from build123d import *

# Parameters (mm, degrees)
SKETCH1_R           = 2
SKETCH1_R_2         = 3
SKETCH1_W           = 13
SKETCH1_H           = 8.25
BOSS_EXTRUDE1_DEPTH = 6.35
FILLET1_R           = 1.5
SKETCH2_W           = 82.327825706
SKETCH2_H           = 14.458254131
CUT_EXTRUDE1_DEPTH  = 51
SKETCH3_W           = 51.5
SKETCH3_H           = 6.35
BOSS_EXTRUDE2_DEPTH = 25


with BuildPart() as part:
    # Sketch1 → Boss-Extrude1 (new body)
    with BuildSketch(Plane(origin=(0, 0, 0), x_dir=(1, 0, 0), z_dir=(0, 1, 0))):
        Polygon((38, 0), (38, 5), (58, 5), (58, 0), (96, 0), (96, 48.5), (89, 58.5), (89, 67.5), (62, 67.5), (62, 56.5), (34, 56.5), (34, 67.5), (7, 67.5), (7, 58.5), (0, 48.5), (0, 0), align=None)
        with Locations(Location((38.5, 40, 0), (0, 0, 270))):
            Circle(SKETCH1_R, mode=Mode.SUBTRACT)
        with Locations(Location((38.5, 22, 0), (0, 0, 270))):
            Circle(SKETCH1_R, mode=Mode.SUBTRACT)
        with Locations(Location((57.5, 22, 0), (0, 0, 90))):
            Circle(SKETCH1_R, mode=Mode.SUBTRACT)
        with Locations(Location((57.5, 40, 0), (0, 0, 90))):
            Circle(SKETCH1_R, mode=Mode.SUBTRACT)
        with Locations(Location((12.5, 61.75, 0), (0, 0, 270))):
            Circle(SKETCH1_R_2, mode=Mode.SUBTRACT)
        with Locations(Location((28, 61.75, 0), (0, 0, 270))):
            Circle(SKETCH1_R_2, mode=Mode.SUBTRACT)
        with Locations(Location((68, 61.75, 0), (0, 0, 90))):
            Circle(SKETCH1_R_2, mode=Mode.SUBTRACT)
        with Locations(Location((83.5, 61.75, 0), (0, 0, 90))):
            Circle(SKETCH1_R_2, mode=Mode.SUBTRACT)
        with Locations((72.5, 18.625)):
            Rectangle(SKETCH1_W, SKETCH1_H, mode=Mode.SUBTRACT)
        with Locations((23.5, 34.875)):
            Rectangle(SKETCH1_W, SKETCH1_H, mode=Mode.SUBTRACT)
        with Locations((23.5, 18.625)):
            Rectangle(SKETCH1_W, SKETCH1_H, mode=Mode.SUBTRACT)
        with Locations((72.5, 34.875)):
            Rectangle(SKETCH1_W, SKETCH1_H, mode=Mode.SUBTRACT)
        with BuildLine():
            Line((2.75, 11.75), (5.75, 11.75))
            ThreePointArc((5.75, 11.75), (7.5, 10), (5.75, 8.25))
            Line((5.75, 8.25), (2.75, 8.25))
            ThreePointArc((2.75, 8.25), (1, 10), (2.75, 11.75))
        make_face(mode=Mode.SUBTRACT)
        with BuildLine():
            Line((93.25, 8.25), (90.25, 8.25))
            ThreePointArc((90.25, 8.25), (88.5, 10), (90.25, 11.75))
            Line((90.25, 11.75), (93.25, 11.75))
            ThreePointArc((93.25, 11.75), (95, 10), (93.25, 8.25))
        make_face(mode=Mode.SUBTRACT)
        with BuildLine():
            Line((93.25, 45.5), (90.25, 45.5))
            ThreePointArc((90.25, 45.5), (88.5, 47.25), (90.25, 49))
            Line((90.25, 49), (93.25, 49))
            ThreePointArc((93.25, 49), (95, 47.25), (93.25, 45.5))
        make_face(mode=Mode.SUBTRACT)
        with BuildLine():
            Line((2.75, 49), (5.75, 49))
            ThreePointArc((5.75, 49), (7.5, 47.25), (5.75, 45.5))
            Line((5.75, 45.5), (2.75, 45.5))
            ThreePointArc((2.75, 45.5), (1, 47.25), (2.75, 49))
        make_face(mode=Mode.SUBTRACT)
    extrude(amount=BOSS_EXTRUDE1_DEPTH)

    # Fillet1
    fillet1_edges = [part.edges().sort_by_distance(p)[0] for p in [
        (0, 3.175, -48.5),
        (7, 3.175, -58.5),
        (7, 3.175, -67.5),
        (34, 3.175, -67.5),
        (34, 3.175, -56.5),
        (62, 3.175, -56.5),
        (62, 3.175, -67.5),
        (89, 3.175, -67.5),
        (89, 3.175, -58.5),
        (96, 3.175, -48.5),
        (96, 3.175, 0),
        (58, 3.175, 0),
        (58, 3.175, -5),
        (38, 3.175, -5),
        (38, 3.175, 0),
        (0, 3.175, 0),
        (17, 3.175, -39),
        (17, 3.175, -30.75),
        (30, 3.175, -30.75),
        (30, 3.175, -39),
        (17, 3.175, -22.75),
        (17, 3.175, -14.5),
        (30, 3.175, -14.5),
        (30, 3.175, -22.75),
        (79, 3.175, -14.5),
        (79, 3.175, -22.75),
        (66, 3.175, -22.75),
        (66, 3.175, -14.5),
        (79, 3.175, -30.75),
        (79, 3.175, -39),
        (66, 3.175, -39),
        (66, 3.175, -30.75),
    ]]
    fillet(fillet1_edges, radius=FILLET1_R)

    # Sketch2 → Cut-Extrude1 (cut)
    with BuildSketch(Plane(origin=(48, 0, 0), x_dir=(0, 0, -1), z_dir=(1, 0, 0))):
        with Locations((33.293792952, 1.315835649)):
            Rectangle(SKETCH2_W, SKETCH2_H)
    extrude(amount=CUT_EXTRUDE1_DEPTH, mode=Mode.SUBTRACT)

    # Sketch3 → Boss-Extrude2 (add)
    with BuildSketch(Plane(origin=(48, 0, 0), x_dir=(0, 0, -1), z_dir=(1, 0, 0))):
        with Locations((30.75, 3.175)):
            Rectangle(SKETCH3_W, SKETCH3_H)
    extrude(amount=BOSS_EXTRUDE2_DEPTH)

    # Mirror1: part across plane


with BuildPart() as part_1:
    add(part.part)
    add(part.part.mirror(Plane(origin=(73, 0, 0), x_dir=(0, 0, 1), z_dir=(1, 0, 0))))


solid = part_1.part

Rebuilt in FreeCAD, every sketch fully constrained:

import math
import FreeCAD as App
import Part
import Sketcher
from FreeCAD import Vector


def edges_at(feature, points):
    """Names of the edges that pass closest to the given points."""
    edges = feature.Shape.Edges
    near = lambda p: min(range(len(edges)), key=lambda i: edges[i].distToShape(Part.Vertex(*p))[0])
    return sorted({f"Edge{near(p) + 1}" for p in points})


def add_polygon(sketch, points):
    """Adds a closed chain of lines whose ends are joined by coincident constraints."""
    first, n = sketch.GeometryCount, len(points)
    for a, b in zip(points, points[1:] + points[:1]):
        sketch.addGeometry(Part.LineSegment(App.Vector(*a, 0), App.Vector(*b, 0)), False)
    for i in range(n):
        sketch.addConstraint(Sketcher.Constraint("Coincident", first + i, 2, first + (i + 1) % n, 1))

doc = App.newDocument("Part")
body = doc.addObject("PartDesign::Body", "Body")

sketch1 = body.newObject("Sketcher::SketchObject", "Sketch")
sketch1.AttachmentSupport = (doc.getObject("XZ_Plane"), [""])
sketch1.MapMode = "FlatFace"
add_polygon(sketch1, [(38, 0), (38, -5), (58, -5), (58, 0), (96, 0), (96, -48.5), (89, -58.5), (89, -67.5), (62, -67.5), (62, -56.5), (34, -56.5), (34, -67.5), (7, -67.5), (7, -58.5), (0, -48.5), (0, 0)])
sketch1.addGeometry(Part.ArcOfCircle(Part.Circle(Vector(2.8, -10, 0), Vector(0, 0, 1), 1.8), math.radians(90), math.radians(270)), False)
sketch1.addGeometry(Part.LineSegment(Vector(2.8, -11.8, 0), Vector(5.8, -11.8, 0)), False)
sketch1.addGeometry(Part.ArcOfCircle(Part.Circle(Vector(5.8, -10, 0), Vector(0, 0, 1), 1.8), math.radians(-90), math.radians(90)), False)
sketch1.addGeometry(Part.LineSegment(Vector(5.8, -8.2, 0), Vector(2.8, -8.2, 0)), False)
add_polygon(sketch1, [(30, -14.5), (17, -14.5), (17, -22.8), (30, -22.8)])
sketch1.addGeometry(Part.Circle(Vector(38.5, -22, 0), Vector(0, 0, 1), 2), False)
add_polygon(sketch1, [(30, -30.8), (17, -30.8), (17, -39), (30, -39)])
sketch1.addGeometry(Part.Circle(Vector(57.5, -22, 0), Vector(0, 0, 1), 2), False)
sketch1.addGeometry(Part.ArcOfCircle(Part.Circle(Vector(93.2, -10, 0), Vector(0, 0, 1), 1.8), math.radians(-90), math.radians(90)), False)
sketch1.addGeometry(Part.LineSegment(Vector(93.2, -8.2, 0), Vector(90.2, -8.2, 0)), False)
sketch1.addGeometry(Part.ArcOfCircle(Part.Circle(Vector(90.2, -10, 0), Vector(0, 0, 1), 1.8), math.radians(90), math.radians(270)), False)
sketch1.addGeometry(Part.LineSegment(Vector(90.2, -11.8, 0), Vector(93.2, -11.8, 0)), False)
add_polygon(sketch1, [(79, -14.5), (66, -14.5), (66, -22.8), (79, -22.8)])
add_polygon(sketch1, [(79, -30.8), (66, -30.8), (66, -39), (79, -39)])
sketch1.addGeometry(Part.ArcOfCircle(Part.Circle(Vector(2.8, -47.2, 0), Vector(0, 0, 1), 1.8), math.radians(90), math.radians(270)), False)
sketch1.addGeometry(Part.LineSegment(Vector(2.8, -49, 0), Vector(5.8, -49, 0)), False)
sketch1.addGeometry(Part.ArcOfCircle(Part.Circle(Vector(5.8, -47.2, 0), Vector(0, 0, 1), 1.8), math.radians(-90), math.radians(90)), False)
sketch1.addGeometry(Part.LineSegment(Vector(5.8, -45.5, 0), Vector(2.8, -45.5, 0)), False)
sketch1.addGeometry(Part.Circle(Vector(38.5, -40, 0), Vector(0, 0, 1), 2), False)
sketch1.addGeometry(Part.Circle(Vector(12.5, -61.8, 0), Vector(0, 0, 1), 3), False)
sketch1.addGeometry(Part.Circle(Vector(28, -61.8, 0), Vector(0, 0, 1), 3), False)
sketch1.addGeometry(Part.Circle(Vector(57.5, -40, 0), Vector(0, 0, 1), 2), False)
sketch1.addGeometry(Part.ArcOfCircle(Part.Circle(Vector(93.2, -47.2, 0), Vector(0, 0, 1), 1.8), math.radians(-90), math.radians(90)), False)
sketch1.addGeometry(Part.LineSegment(Vector(93.2, -45.5, 0), Vector(90.2, -45.5, 0)), False)
sketch1.addGeometry(Part.ArcOfCircle(Part.Circle(Vector(90.2, -47.2, 0), Vector(0, 0, 1), 1.8), math.radians(90), math.radians(270)), False)
sketch1.addGeometry(Part.LineSegment(Vector(90.2, -49, 0), Vector(93.2, -49, 0)), False)
sketch1.addGeometry(Part.Circle(Vector(68, -61.8, 0), Vector(0, 0, 1), 3), False)
sketch1.addGeometry(Part.Circle(Vector(83.5, -61.8, 0), Vector(0, 0, 1), 3), False)
sketch1.addConstraint(Sketcher.Constraint("Tangent", 16, 2, 17, 1))
sketch1.addConstraint(Sketcher.Constraint("Tangent", 17, 2, 18, 1))
sketch1.addConstraint(Sketcher.Constraint("Tangent", 18, 2, 19, 1))
sketch1.addConstraint(Sketcher.Constraint("Tangent", 19, 2, 16, 1))
sketch1.addConstraint(Sketcher.Constraint("Tangent", 30, 2, 31, 1))
sketch1.addConstraint(Sketcher.Constraint("Tangent", 31, 2, 32, 1))
sketch1.addConstraint(Sketcher.Constraint("Tangent", 32, 2, 33, 1))
sketch1.addConstraint(Sketcher.Constraint("Tangent", 33, 2, 30, 1))
sketch1.addConstraint(Sketcher.Constraint("Tangent", 42, 2, 43, 1))
sketch1.addConstraint(Sketcher.Constraint("Tangent", 43, 2, 44, 1))
sketch1.addConstraint(Sketcher.Constraint("Tangent", 44, 2, 45, 1))
sketch1.addConstraint(Sketcher.Constraint("Tangent", 45, 2, 42, 1))
sketch1.addConstraint(Sketcher.Constraint("Tangent", 50, 2, 51, 1))
sketch1.addConstraint(Sketcher.Constraint("Tangent", 51, 2, 52, 1))
sketch1.addConstraint(Sketcher.Constraint("Tangent", 52, 2, 53, 1))
sketch1.addConstraint(Sketcher.Constraint("Tangent", 53, 2, 50, 1))
sketch1.addConstraint(Sketcher.Constraint("Vertical", 0))
sketch1.addConstraint(Sketcher.Constraint("Horizontal", 1))
sketch1.addConstraint(Sketcher.Constraint("Vertical", 2))
sketch1.addConstraint(Sketcher.Constraint("Horizontal", 3))
sketch1.addConstraint(Sketcher.Constraint("Vertical", 4))
sketch1.addConstraint(Sketcher.Constraint("Vertical", 6))
sketch1.addConstraint(Sketcher.Constraint("Horizontal", 7))
sketch1.addConstraint(Sketcher.Constraint("Vertical", 8))
sketch1.addConstraint(Sketcher.Constraint("Horizontal", 9))
sketch1.addConstraint(Sketcher.Constraint("Vertical", 10))
sketch1.addConstraint(Sketcher.Constraint("Horizontal", 11))
sketch1.addConstraint(Sketcher.Constraint("Vertical", 12))
sketch1.addConstraint(Sketcher.Constraint("Vertical", 14))
sketch1.addConstraint(Sketcher.Constraint("Horizontal", 15))
sketch1.addConstraint(Sketcher.Constraint("Horizontal", 17))
sketch1.addConstraint(Sketcher.Constraint("Horizontal", 19))
sketch1.addConstraint(Sketcher.Constraint("Horizontal", 20))
sketch1.addConstraint(Sketcher.Constraint("Vertical", 21))
sketch1.addConstraint(Sketcher.Constraint("Horizontal", 22))
sketch1.addConstraint(Sketcher.Constraint("Vertical", 23))
sketch1.addConstraint(Sketcher.Constraint("Horizontal", 25))
sketch1.addConstraint(Sketcher.Constraint("Vertical", 26))
sketch1.addConstraint(Sketcher.Constraint("Horizontal", 27))
sketch1.addConstraint(Sketcher.Constraint("Vertical", 28))
sketch1.addConstraint(Sketcher.Constraint("Horizontal", 31))
sketch1.addConstraint(Sketcher.Constraint("Horizontal", 33))
sketch1.addConstraint(Sketcher.Constraint("Horizontal", 34))
sketch1.addConstraint(Sketcher.Constraint("Vertical", 35))
sketch1.addConstraint(Sketcher.Constraint("Horizontal", 36))
sketch1.addConstraint(Sketcher.Constraint("Vertical", 37))
sketch1.addConstraint(Sketcher.Constraint("Horizontal", 38))
sketch1.addConstraint(Sketcher.Constraint("Vertical", 39))
sketch1.addConstraint(Sketcher.Constraint("Horizontal", 40))
sketch1.addConstraint(Sketcher.Constraint("Vertical", 41))
sketch1.addConstraint(Sketcher.Constraint("Horizontal", 43))
sketch1.addConstraint(Sketcher.Constraint("Horizontal", 45))
sketch1.addConstraint(Sketcher.Constraint("Horizontal", 51))
sketch1.addConstraint(Sketcher.Constraint("Horizontal", 53))
sketch1.addConstraint(Sketcher.Constraint("Coincident", 14, 2, -1, 1))
sketch1.addConstraint(Sketcher.Constraint("Equal", 24, 29))
sketch1.addConstraint(Sketcher.Constraint("Equal", 18, 30))
sketch1.addConstraint(Sketcher.Constraint("Equal", 32, 42))
sketch1.addConstraint(Sketcher.Constraint("Equal", 29, 46))
sketch1.addConstraint(Sketcher.Constraint("Equal", 47, 48))
sketch1.addConstraint(Sketcher.Constraint("Equal", 46, 49))
sketch1.addConstraint(Sketcher.Constraint("Equal", 44, 50))
sketch1.addConstraint(Sketcher.Constraint("Equal", 48, 54))
sketch1.addConstraint(Sketcher.Constraint("Equal", 54, 55))
sketch1.addConstraint(Sketcher.Constraint("PointOnObject", 2, 2, -1))
sketch1.addConstraint(Sketcher.Constraint("Horizontal", 24, 3, 29, 3))
sketch1.addConstraint(Sketcher.Constraint("Horizontal", 18, 3, 30, 3))
sketch1.addConstraint(Sketcher.Constraint("Horizontal", 47, 3, 48, 3))
sketch1.addConstraint(Sketcher.Constraint("Horizontal", 46, 3, 49, 3))
sketch1.addConstraint(Sketcher.Constraint("Horizontal", 44, 3, 50, 3))
sketch1.addConstraint(Sketcher.Constraint("Horizontal", 48, 3, 54, 3))
sketch1.addConstraint(Sketcher.Constraint("Horizontal", 54, 3, 55, 3))
sketch1.addConstraint(Sketcher.Constraint("Horizontal", 7, 2, 10, 2))
sketch1.addConstraint(Sketcher.Constraint("Horizontal", 5, 2, 12, 2))
sketch1.addConstraint(Sketcher.Constraint("Horizontal", 4, 2, 13, 2))
sketch1.addConstraint(Sketcher.Constraint("Horizontal", 23, 2, 34, 2))
sketch1.addConstraint(Sketcher.Constraint("Horizontal", 22, 2, 35, 2))
sketch1.addConstraint(Sketcher.Constraint("Horizontal", 28, 2, 38, 2))
sketch1.addConstraint(Sketcher.Constraint("Horizontal", 27, 2, 39, 2))
sketch1.addConstraint(Sketcher.Constraint("Vertical", 16, 3, 42, 3))
sketch1.addConstraint(Sketcher.Constraint("Vertical", 18, 3, 44, 3))
sketch1.addConstraint(Sketcher.Constraint("Vertical", 24, 3, 46, 3))
sketch1.addConstraint(Sketcher.Constraint("Vertical", 29, 3, 49, 3))
sketch1.addConstraint(Sketcher.Constraint("Vertical", 30, 3, 50, 3))
sketch1.addConstraint(Sketcher.Constraint("Vertical", 32, 3, 52, 3))
sketch1.addConstraint(Sketcher.Constraint("Vertical", 21, 2, 25, 2))
sketch1.addConstraint(Sketcher.Constraint("Vertical", 23, 2, 27, 2))
sketch1.addConstraint(Sketcher.Constraint("Vertical", 35, 2, 38, 2))
sketch1.addConstraint(Sketcher.Constraint("Vertical", 37, 2, 40, 2))
sketch1.addConstraint(Sketcher.Constraint("Equal", 7, 11))
sketch1.addConstraint(Sketcher.Constraint("Equal", 3, 15))
sketch1.addConstraint(Sketcher.Constraint("Equal", 19, 31))
sketch1.addConstraint(Sketcher.Constraint("Equal", 27, 34))
sketch1.addConstraint(Sketcher.Constraint("Equal", 23, 26))
sketch1.addConstraint(Sketcher.Constraint("Equal", 5, 13))
sketch1.addConstraint(Sketcher.Constraint("Diameter", 24, 4.0))
sketch1.addConstraint(Sketcher.Constraint("Diameter", 47, 6.0))
sketch1.addConstraint(Sketcher.Constraint("DistanceX", 1, 1, 1, 2, 20.0))
sketch1.addConstraint(Sketcher.Constraint("DistanceX", 3, 1, 3, 2, 38.0))
sketch1.addConstraint(Sketcher.Constraint("DistanceX", 7, 2, 7, 1, 27.0))
sketch1.addConstraint(Sketcher.Constraint("DistanceX", 9, 2, 9, 1, 28.0))
sketch1.addConstraint(Sketcher.Constraint("DistanceX", 17, 1, 17, 2, 3.0))
sketch1.addConstraint(Sketcher.Constraint("DistanceX", 20, 2, 20, 1, 13.0))
sketch1.addConstraint(Sketcher.Constraint("DistanceY", 0, 2, 0, 1, 5.0))
sketch1.addConstraint(Sketcher.Constraint("DistanceY", 6, 2, 6, 1, 9.0))
sketch1.addConstraint(Sketcher.Constraint("DistanceY", 8, 1, 8, 2, 11.0))
sketch1.addConstraint(Sketcher.Constraint("Radius", 16, 1.75))
sketch1.addConstraint(Sketcher.Constraint("DistanceY", 4, 2, 4, 1, 48.5))
sketch1.addConstraint(Sketcher.Constraint("DistanceY", 16, 3, -1, 1, 10.0))
sketch1.addConstraint(Sketcher.Constraint("DistanceY", 24, 3, -1, 1, 22.0))
sketch1.addConstraint(Sketcher.Constraint("DistanceY", 46, 3, -1, 1, 40.0))
sketch1.addConstraint(Sketcher.Constraint("DistanceX", -1, 1, 48, 3, 28.0))
sketch1.addConstraint(Sketcher.Constraint("DistanceX", -1, 1, 54, 3, 68.0))
sketch1.addConstraint(Sketcher.Constraint("DistanceX", -1, 1, 20, 2, 17.0))
sketch1.addConstraint(Sketcher.Constraint("DistanceY", 26, 2, -1, 1, 39.0))
sketch1.addConstraint(Sketcher.Constraint("DistanceX", -1, 1, 34, 2, 66.0))
sketch1.addConstraint(Sketcher.Constraint("DistanceY", 42, 2, -1, 1, 49.0))
sketch1.addConstraint(Sketcher.Constraint("DistanceY", 21, 2, 21, 1, 8.25))
sketch1.addConstraint(Sketcher.Constraint("DistanceX", -1, 1, 24, 3, 38.5))
sketch1.addConstraint(Sketcher.Constraint("DistanceX", -1, 1, 29, 3, 57.5))
sketch1.addConstraint(Sketcher.Constraint("DistanceX", -1, 1, 47, 3, 12.5))
sketch1.addConstraint(Sketcher.Constraint("DistanceX", -1, 1, 55, 3, 83.5))
sketch1.addConstraint(Sketcher.Constraint("DistanceY", 5, 2, -1, 1, 58.5))
sketch1.addConstraint(Sketcher.Constraint("DistanceY", 20, 2, -1, 1, 14.5))
sketch1.addConstraint(Sketcher.Constraint("DistanceX", -1, 1, 16, 3, 2.75))
sketch1.addConstraint(Sketcher.Constraint("DistanceX", -1, 1, 30, 3, 93.25))
sketch1.addConstraint(Sketcher.Constraint("DistanceY", 47, 3, -1, 1, 61.75))
pad1 = body.newObject("PartDesign::Pad", "Pad")
pad1.Profile = sketch1
pad1.Length = 6.35
pad1.Reversed = True
doc.recompute()

fillet = body.newObject("PartDesign::Fillet", "Fillet")
fillet.Base = (pad1, edges_at(pad1, [
    (0, 3.175, -48.5),
    (7, 3.175, -58.5),
    (7, 3.175, -67.5),
    (34, 3.175, -67.5),
    (34, 3.175, -56.5),
    (62, 3.175, -56.5),
    (62, 3.175, -67.5),
    (89, 3.175, -67.5),
    (89, 3.175, -58.5),
    (96, 3.175, -48.5),
    (96, 3.175, 0),
    (58, 3.175, 0),
    (58, 3.175, -5),
    (38, 3.175, -5),
    (38, 3.175, 0),
    (0, 3.175, 0),
    (17, 3.175, -39),
    (17, 3.175, -30.75),
    (30, 3.175, -30.75),
    (30, 3.175, -39),
    (17, 3.175, -22.75),
    (17, 3.175, -14.5),
    (30, 3.175, -14.5),
    (30, 3.175, -22.75),
    (79, 3.175, -14.5),
    (79, 3.175, -22.75),
    (66, 3.175, -22.75),
    (66, 3.175, -14.5),
    (79, 3.175, -30.75),
    (79, 3.175, -39),
    (66, 3.175, -39),
    (66, 3.175, -30.75),
]))
fillet.Radius = 1.5

sketch2 = body.newObject("Sketcher::SketchObject", "Sketch001")
sketch2.AttachmentSupport = (doc.getObject("YZ_Plane"), [""])
sketch2.MapMode = "FlatFace"
sketch2.AttachmentOffset = App.Placement(Vector(0, 0, 48), App.Rotation())
add_polygon(sketch2, [(9, 8), (-6, 8), (-6, -74), (9, -74)])
sketch2.addConstraint(Sketcher.Constraint("Horizontal", 0))
sketch2.addConstraint(Sketcher.Constraint("Vertical", 1))
sketch2.addConstraint(Sketcher.Constraint("Horizontal", 2))
sketch2.addConstraint(Sketcher.Constraint("Vertical", 3))
sketch2.addConstraint(Sketcher.Constraint("DistanceX", 0, 2, 0, 1, 14.458254))
sketch2.addConstraint(Sketcher.Constraint("DistanceY", 1, 2, 1, 1, 82.327826))
sketch2.addConstraint(Sketcher.Constraint("DistanceX", 0, 2, -1, 1, 5.913291))
sketch2.addConstraint(Sketcher.Constraint("DistanceY", -1, 1, 0, 2, 7.87012))
pocket1 = body.newObject("PartDesign::Pocket", "Pocket")
pocket1.Profile = sketch2
pocket1.Length = 51
pocket1.Reversed = True

sketch3 = body.newObject("Sketcher::SketchObject", "Sketch002")
sketch3.AttachmentSupport = (doc.getObject("YZ_Plane"), [""])
sketch3.MapMode = "FlatFace"
sketch3.AttachmentOffset = App.Placement(Vector(0, 0, 48), App.Rotation())
add_polygon(sketch3, [(6, -5), (0, -5), (0, -56), (6, -56)])
sketch3.addConstraint(Sketcher.Constraint("Horizontal", 0))
sketch3.addConstraint(Sketcher.Constraint("Vertical", 1))
sketch3.addConstraint(Sketcher.Constraint("Horizontal", 2))
sketch3.addConstraint(Sketcher.Constraint("Vertical", 3))
sketch3.addConstraint(Sketcher.Constraint("PointOnObject", 0, 2, -2))
sketch3.addConstraint(Sketcher.Constraint("DistanceY", 1, 2, 1, 1, 51.5))
sketch3.addConstraint(Sketcher.Constraint("DistanceY", 0, 2, -1, 1, 5.0))
sketch3.addConstraint(Sketcher.Constraint("DistanceX", 0, 2, 0, 1, 6.35))
pad2 = body.newObject("PartDesign::Pad", "Pad001")
pad2.Profile = sketch3
pad2.Length = 25
body2 = doc.addObject("PartDesign::Body", "Body001")
doc.recompute()

body2.BaseFeature = body
doc.recompute()

mirroring = doc.addObject("Part::Mirroring", "Mirroring")
mirroring.Source = body
mirroring.Base = Vector(73, 0, 0)
mirroring.Normal = Vector(1, 0, 0)
body3 = doc.addObject("PartDesign::Body", "Body002")
body3.BaseFeature = mirroring
boolean = body2.newObject("PartDesign::Boolean", "Boolean")
boolean.Type = "Fuse"
boolean.addObjects([body3])
doc.recompute()
mirroring.Visibility = False

doc.recompute()
